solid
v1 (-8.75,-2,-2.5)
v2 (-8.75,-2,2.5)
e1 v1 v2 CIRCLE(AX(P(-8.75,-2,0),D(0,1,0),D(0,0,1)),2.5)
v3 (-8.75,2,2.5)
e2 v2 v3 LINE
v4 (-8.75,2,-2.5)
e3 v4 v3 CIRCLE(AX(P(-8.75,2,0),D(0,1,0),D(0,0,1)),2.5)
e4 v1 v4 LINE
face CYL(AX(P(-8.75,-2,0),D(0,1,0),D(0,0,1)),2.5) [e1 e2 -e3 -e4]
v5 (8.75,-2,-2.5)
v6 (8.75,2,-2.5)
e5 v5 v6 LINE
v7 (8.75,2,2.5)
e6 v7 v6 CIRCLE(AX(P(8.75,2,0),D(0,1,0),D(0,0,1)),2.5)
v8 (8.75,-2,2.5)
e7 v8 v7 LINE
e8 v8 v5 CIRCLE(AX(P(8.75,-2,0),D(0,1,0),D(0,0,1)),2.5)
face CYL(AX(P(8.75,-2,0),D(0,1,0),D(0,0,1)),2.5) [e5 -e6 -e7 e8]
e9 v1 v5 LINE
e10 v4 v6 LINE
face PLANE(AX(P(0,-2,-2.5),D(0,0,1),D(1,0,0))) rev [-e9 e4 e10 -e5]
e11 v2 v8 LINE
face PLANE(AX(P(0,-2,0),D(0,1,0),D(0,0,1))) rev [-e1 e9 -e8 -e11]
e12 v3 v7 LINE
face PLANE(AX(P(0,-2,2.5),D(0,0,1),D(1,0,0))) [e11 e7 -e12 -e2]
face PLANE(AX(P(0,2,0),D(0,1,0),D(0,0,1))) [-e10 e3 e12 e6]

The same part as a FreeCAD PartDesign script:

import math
import FreeCAD as App
import Part
import Sketcher

V = App.Vector
Q = App.Units.Quantity

doc = App.newDocument("Part")
body = doc.addObject("PartDesign::Body", "Body")

sketch1 = body.newObject("Sketcher::SketchObject", "Sketch")
sketch1.AttachmentSupport = (doc.getObject("XZ_Plane"), [""])
sketch1.MapMode = "FlatFace"
sketch1.addGeometry([
    Part.LineSegment(V(8.8, -2.5, 0), V(-8.8, -2.5, 0)),
    Part.ArcOfCircle(Part.Circle(V(-8.8, 0, 0), V(0, 0, 1), 2.5), math.radians(90), math.radians(270)),
    Part.LineSegment(V(-8.8, 2.5, 0), V(8.8, 2.5, 0)),
    Part.ArcOfCircle(Part.Circle(V(8.8, 0, 0), V(0, 0, 1), 2.5), math.radians(-90), math.radians(90)),
], False)
sketch1.addConstraint([
    Sketcher.Constraint("Tangent", 0, 2, 1, 2),
    Sketcher.Constraint("Tangent", 1, 1, 2, 1),
    Sketcher.Constraint("Tangent", 2, 2, 3, 2),
    Sketcher.Constraint("Tangent", 3, 1, 0, 1),
    Sketcher.Constraint("Horizontal", 0),
    Sketcher.Constraint("Horizontal", 2),
    Sketcher.Constraint("Symmetric", 1, 3, 3, 3, -1, 1),
    Sketcher.Constraint("Radius", 1, Q("2.5 mm")),
    Sketcher.Constraint("DistanceX", 0, 2, 0, 1, Q("17.5 mm")),
])
pad1 = body.newObject("PartDesign::Pad", "Pad")
pad1.Profile = sketch1
pad1.Type = "TwoLengths"
pad1.Length = 2
pad1.Length2 = 2
pad1.Reversed = True

doc.recompute()
